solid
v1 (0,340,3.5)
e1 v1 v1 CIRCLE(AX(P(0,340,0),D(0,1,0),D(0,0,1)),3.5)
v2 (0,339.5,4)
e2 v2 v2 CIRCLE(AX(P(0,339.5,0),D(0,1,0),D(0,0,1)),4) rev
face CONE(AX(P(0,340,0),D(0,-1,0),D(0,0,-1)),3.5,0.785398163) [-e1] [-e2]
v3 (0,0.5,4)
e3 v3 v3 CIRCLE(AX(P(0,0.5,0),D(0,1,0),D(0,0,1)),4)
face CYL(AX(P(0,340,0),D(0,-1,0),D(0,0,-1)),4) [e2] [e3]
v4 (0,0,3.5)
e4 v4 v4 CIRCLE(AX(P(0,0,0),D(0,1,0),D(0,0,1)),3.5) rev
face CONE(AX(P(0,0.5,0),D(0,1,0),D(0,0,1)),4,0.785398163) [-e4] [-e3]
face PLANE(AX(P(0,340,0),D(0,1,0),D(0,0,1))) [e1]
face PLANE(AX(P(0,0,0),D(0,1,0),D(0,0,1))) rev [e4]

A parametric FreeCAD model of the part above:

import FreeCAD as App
import Part
import Sketcher


def edges_at(feature, points):
    """Names of the edges that pass closest to the given points."""
    edges = feature.Shape.Edges
    near = lambda p: min(range(len(edges)), key=lambda i: edges[i].distToShape(Part.Vertex(*p))[0])
    return sorted({f"Edge{near(p) + 1}" for p in points})

doc = App.newDocument("Part")
body = doc.addObject("PartDesign::Body", "Body")

# Sketch on XZ plane
sketch1 = body.newObject("Sketcher::SketchObject", "Sketch")
sketch1.AttachmentSupport = (doc.getObject("XZ_Plane"), [""])
sketch1.MapMode = "FlatFace"
sketch1.addGeometry(Part.Circle(App.Vector(0, 0, 0), App.Vector(0, 0, 1), 4), False)
sketch1.addConstraint([
    Sketcher.Constraint("Coincident", 0, 3, -1, 1),
    Sketcher.Constraint("Diameter", 0, 8.0),
])
pad1 = body.newObject("PartDesign::Pad", "Pad")
pad1.Profile = sketch1
pad1.Length = 340
pad1.Reversed = True
doc.recompute()

chamfer = body.newObject("PartDesign::Chamfer", "Chamfer")
chamfer.Base = (pad1, edges_at(pad1, [(0, 0, -4), (0, 340, -4)]))
chamfer.Size = 0.5

doc.recompute()
